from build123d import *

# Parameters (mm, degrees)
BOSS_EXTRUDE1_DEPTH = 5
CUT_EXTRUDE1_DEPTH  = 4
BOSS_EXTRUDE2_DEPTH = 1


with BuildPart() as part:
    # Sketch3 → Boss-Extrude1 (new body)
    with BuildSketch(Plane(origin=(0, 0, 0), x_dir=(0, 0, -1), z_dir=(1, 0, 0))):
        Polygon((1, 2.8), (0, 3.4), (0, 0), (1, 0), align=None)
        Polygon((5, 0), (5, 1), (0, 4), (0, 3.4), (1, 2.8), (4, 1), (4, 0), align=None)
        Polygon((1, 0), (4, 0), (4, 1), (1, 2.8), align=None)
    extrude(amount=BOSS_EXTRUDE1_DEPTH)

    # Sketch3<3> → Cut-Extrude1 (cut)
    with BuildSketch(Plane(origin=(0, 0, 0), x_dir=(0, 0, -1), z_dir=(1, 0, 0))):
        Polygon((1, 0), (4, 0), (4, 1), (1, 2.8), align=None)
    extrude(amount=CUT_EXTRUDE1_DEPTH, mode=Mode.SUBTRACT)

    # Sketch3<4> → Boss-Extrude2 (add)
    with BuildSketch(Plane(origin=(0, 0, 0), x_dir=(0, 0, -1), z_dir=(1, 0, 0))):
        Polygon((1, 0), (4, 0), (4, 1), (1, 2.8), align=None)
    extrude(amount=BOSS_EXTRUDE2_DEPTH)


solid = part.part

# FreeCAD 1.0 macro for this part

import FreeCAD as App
import Part
import Sketcher
from FreeCAD import Vector


def add_polygon(sketch, points):
    """Adds a closed chain of lines whose ends are joined by coincident constraints."""
    first, n = sketch.GeometryCount, len(points)
    for a, b in zip(points, points[1:] + points[:1]):
        sketch.addGeometry(Part.LineSegment(App.Vector(*a, 0), App.Vector(*b, 0)), False)
    for i in range(n):
        sketch.addConstraint(Sketcher.Constraint("Coincident", first + i, 2, first + (i + 1) % n, 1))

doc = App.newDocument("Part")
body = doc.addObject("PartDesign::Body", "Body")

# Sketch on YZ plane
sketch1 = doc.addObject("Sketcher::SketchObject", "Sketch")
body.addObject(sketch1)
sketch1.AttachmentSupport = (doc.YZ_Plane, [""])
sketch1.MapMode = "FlatFace"
add_polygon(sketch1, [(0, 0), (0, -5), (1, -5), (4, 0)])  # lines 0-3
sketch1.addConstraint([
    Sketcher.Constraint("Vertical", 0),
    Sketcher.Constraint("Horizontal", 1),
    Sketcher.Constraint("Horizontal", 3),
    Sketcher.Constraint("Coincident", 3, 2, -1, 1),
    Sketcher.Constraint("DistanceX", 1, 1, 1, 2, 1.0),
    Sketcher.Constraint("DistanceX", 3, 2, 3, 1, 4.0),
    Sketcher.Constraint("DistanceY", 0, 2, 0, 1, 5.0),
])
pad1 = doc.addObject("PartDesign::Pad", "Pad")
body.addObject(pad1)
pad1.Profile = sketch1
pad1.Length = 5

# Sketch on YZ plane
sketch2 = doc.addObject("Sketcher::SketchObject", "Sketch001")
body.addObject(sketch2)
sketch2.AttachmentSupport = (doc.YZ_Plane, [""])
sketch2.MapMode = "FlatFace"
add_polygon(sketch2, [(0, -1), (0, -4), (1, -4), (2.8, -1)])  # lines 0-3
sketch2.addConstraint([
    Sketcher.Constraint("Vertical", 0),
    Sketcher.Constraint("Horizontal", 1),
    Sketcher.Constraint("Horizontal", 3),
    Sketcher.Constraint("PointOnObject", 0, 2, -2),
    Sketcher.Constraint("DistanceX", 1, 1, 1, 2, 1.0),
    Sketcher.Constraint("DistanceY", 0, 2, 0, 1, 3.0),
    Sketcher.Constraint("DistanceX", 3, 2, 3, 1, 2.8),
    Sketcher.Constraint("DistanceY", 0, 2, -1, 1, 4.0),
])
pocket1 = doc.addObject("PartDesign::Pocket", "Pocket")
body.addObject(pocket1)
pocket1.Profile = sketch2
pocket1.Length = 4
pocket1.Reversed = True

# Sketch on YZ plane
sketch3 = doc.addObject("Sketcher::SketchObject", "Sketch002")
body.addObject(sketch3)
sketch3.AttachmentSupport = (doc.YZ_Plane, [""])
sketch3.MapMode = "FlatFace"
add_polygon(sketch3, [(0, -1), (0, -4), (1, -4), (2.8, -1)])  # lines 0-3
sketch3.addConstraint([
    Sketcher.Constraint("Vertical", 0),
    Sketcher.Constraint("Horizontal", 1),
    Sketcher.Constraint("Horizontal", 3),
    Sketcher.Constraint("PointOnObject", 0, 2, -2),
    Sketcher.Constraint("DistanceX", 1, 1, 1, 2, 1.0),
    Sketcher.Constraint("DistanceY", 0, 2, 0, 1, 3.0),
    Sketcher.Constraint("DistanceX", 3, 2, 3, 1, 2.8),
    Sketcher.Constraint("DistanceY", 0, 2, -1, 1, 4.0),
])
pad2 = doc.addObject("PartDesign::Pad", "Pad001")
body.addObject(pad2)
pad2.Profile = sketch3
pad2.Length = 1

doc.recompute()
